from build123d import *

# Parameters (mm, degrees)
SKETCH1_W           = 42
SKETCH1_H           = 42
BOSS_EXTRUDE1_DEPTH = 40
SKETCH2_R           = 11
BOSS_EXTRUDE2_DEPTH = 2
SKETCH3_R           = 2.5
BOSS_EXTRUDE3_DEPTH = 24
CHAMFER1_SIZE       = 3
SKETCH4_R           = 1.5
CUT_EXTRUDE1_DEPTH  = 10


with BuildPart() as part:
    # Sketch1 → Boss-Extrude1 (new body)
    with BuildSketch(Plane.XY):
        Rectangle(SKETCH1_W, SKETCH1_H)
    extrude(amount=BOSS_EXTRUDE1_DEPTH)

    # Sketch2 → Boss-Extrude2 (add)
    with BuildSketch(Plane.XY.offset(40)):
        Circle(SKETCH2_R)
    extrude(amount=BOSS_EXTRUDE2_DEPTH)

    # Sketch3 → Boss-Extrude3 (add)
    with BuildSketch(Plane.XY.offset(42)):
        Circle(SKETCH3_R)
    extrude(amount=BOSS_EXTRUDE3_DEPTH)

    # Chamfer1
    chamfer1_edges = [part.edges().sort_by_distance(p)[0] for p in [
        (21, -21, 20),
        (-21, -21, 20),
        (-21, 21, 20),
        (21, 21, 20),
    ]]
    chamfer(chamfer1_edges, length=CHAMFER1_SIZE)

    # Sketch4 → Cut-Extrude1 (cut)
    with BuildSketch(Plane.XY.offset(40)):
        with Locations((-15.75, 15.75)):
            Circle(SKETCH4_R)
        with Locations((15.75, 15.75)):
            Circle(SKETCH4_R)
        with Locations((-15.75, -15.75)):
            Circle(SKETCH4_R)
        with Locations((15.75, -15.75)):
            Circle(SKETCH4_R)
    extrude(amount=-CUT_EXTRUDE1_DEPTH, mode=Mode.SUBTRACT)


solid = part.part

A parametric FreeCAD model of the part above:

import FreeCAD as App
import Part
import Sketcher
from FreeCAD import Vector
Q = App.Units.Quantity


def edges_at(feature, points):
    """Names of the edges that pass closest to the given points."""
    edges = feature.Shape.Edges
    near = lambda p: min(range(len(edges)), key=lambda i: edges[i].distToShape(Part.Vertex(*p))[0])
    return sorted({f"Edge{near(p) + 1}" for p in points})

doc = App.newDocument("Part")
body = doc.addObject("PartDesign::Body", "Body")

sketch1 = doc.addObject("Sketcher::SketchObject", "Sketch")
body.addObject(sketch1)
sketch1.AttachmentSupport = (doc.XY_Plane, [""])
sketch1.MapMode = "FlatFace"
sketch1.addGeometry([
    Part.LineSegment(Vector(-21, 21, 0), Vector(-21, -21, 0)),
    Part.LineSegment(Vector(-21, -21, 0), Vector(21, -21, 0)),
    Part.LineSegment(Vector(21, -21, 0), Vector(21, 21, 0)),
    Part.LineSegment(Vector(21, 21, 0), Vector(-21, 21, 0)),
], False)
sketch1.addConstraint([
    Sketcher.Constraint("Coincident", 0, 2, 1, 1),
    Sketcher.Constraint("Coincident", 1, 2, 2, 1),
    Sketcher.Constraint("Coincident", 2, 2, 3, 1),
    Sketcher.Constraint("Coincident", 3, 2, 0, 1),
    Sketcher.Constraint("Vertical", 0),
    Sketcher.Constraint("Horizontal", 1),
    Sketcher.Constraint("Vertical", 2),
    Sketcher.Constraint("Horizontal", 3),
    Sketcher.Constraint("Symmetric", 0, 2, 2, 2, -1, 1),
    Sketcher.Constraint("Equal", 3, 0),
    Sketcher.Constraint("DistanceX", 1, 1, 1, 2, Q("42 mm")),
])
pad1 = doc.addObject("PartDesign::Pad", "Pad")
body.addObject(pad1)
pad1.Profile = sketch1
pad1.Length = 40

sketch2 = doc.addObject("Sketcher::SketchObject", "Sketch001")
body.addObject(sketch2)
sketch2.AttachmentSupport = (doc.XY_Plane, [""])
sketch2.MapMode = "FlatFace"
sketch2.AttachmentOffset = App.Placement(Vector(0, 0, 40), App.Rotation())
sketch2.addGeometry(Part.Circle(Vector(0, 0, 0), Vector(0, 0, 1), 11), False)
sketch2.addConstraint([
    Sketcher.Constraint("Coincident", 0, 3, -1, 1),
    Sketcher.Constraint("Diameter", 0, Q("22 mm")),
])
pad2 = doc.addObject("PartDesign::Pad", "Pad001")
body.addObject(pad2)
pad2.Profile = sketch2
pad2.Length = 2

sketch3 = doc.addObject("Sketcher::SketchObject", "Sketch002")
body.addObject(sketch3)
sketch3.AttachmentSupport = (doc.XY_Plane, [""])
sketch3.MapMode = "FlatFace"
sketch3.AttachmentOffset = App.Placement(Vector(0, 0, 42), App.Rotation())
sketch3.addGeometry(Part.Circle(Vector(0, 0, 0), Vector(0, 0, 1), 2.5), False)
sketch3.addConstraint([
    Sketcher.Constraint("Coincident", 0, 3, -1, 1),
    Sketcher.Constraint("Diameter", 0, Q("5 mm")),
])
pad3 = doc.addObject("PartDesign::Pad", "Pad002")
body.addObject(pad3)
pad3.Profile = sketch3
pad3.Length = 24
doc.recompute()

chamfer = doc.addObject("PartDesign::Chamfer", "Chamfer")
body.addObject(chamfer)
chamfer.Base = (pad3, edges_at(pad3, [
    (21, -21, 20),
    (-21, -21, 20),
    (-21, 21, 20),
    (21, 21, 20),
]))
chamfer.Size = 3

sketch4 = doc.addObject("Sketcher::SketchObject", "Sketch003")
body.addObject(sketch4)
sketch4.AttachmentSupport = (doc.XY_Plane, [""])
sketch4.MapMode = "FlatFace"
sketch4.AttachmentOffset = App.Placement(Vector(0, 0, 40), App.Rotation())
sketch4.addGeometry([
    Part.Circle(Vector(-15.8, 15.8, 0), Vector(0, 0, 1), 1.5),
    Part.Circle(Vector(15.8, 15.8, 0), Vector(0, 0, 1), 1.5),
    Part.Circle(Vector(-15.8, -15.8, 0), Vector(0, 0, 1), 1.5),
    Part.Circle(Vector(15.8, -15.8, 0), Vector(0, 0, 1), 1.5),
], False)
sketch4.addConstraint([
    Sketcher.Constraint("Equal", 0, 1),
    Sketcher.Constraint("Equal", 1, 2),
    Sketcher.Constraint("Equal", 2, 3),
    Sketcher.Constraint("Symmetric", 1, 3, 2, 3, -1, 1),
    Sketcher.Constraint("Symmetric", 0, 3, 3, 3, -1, 1),
    Sketcher.Constraint("Symmetric", 0, 3, 1, 3, -2),
    Sketcher.Constraint("Diameter", 0, Q("3 mm")),
    Sketcher.Constraint("DistanceX", 0, 3, 1, 3, Q("31.5 mm")),
    Sketcher.Constraint("DistanceY", 2, 3, 0, 3, Q("31.5 mm")),
])
pocket1 = doc.addObject("PartDesign::Pocket", "Pocket")
body.addObject(pocket1)
pocket1.Profile = sketch4
pocket1.Length = 10

doc.recompute()
